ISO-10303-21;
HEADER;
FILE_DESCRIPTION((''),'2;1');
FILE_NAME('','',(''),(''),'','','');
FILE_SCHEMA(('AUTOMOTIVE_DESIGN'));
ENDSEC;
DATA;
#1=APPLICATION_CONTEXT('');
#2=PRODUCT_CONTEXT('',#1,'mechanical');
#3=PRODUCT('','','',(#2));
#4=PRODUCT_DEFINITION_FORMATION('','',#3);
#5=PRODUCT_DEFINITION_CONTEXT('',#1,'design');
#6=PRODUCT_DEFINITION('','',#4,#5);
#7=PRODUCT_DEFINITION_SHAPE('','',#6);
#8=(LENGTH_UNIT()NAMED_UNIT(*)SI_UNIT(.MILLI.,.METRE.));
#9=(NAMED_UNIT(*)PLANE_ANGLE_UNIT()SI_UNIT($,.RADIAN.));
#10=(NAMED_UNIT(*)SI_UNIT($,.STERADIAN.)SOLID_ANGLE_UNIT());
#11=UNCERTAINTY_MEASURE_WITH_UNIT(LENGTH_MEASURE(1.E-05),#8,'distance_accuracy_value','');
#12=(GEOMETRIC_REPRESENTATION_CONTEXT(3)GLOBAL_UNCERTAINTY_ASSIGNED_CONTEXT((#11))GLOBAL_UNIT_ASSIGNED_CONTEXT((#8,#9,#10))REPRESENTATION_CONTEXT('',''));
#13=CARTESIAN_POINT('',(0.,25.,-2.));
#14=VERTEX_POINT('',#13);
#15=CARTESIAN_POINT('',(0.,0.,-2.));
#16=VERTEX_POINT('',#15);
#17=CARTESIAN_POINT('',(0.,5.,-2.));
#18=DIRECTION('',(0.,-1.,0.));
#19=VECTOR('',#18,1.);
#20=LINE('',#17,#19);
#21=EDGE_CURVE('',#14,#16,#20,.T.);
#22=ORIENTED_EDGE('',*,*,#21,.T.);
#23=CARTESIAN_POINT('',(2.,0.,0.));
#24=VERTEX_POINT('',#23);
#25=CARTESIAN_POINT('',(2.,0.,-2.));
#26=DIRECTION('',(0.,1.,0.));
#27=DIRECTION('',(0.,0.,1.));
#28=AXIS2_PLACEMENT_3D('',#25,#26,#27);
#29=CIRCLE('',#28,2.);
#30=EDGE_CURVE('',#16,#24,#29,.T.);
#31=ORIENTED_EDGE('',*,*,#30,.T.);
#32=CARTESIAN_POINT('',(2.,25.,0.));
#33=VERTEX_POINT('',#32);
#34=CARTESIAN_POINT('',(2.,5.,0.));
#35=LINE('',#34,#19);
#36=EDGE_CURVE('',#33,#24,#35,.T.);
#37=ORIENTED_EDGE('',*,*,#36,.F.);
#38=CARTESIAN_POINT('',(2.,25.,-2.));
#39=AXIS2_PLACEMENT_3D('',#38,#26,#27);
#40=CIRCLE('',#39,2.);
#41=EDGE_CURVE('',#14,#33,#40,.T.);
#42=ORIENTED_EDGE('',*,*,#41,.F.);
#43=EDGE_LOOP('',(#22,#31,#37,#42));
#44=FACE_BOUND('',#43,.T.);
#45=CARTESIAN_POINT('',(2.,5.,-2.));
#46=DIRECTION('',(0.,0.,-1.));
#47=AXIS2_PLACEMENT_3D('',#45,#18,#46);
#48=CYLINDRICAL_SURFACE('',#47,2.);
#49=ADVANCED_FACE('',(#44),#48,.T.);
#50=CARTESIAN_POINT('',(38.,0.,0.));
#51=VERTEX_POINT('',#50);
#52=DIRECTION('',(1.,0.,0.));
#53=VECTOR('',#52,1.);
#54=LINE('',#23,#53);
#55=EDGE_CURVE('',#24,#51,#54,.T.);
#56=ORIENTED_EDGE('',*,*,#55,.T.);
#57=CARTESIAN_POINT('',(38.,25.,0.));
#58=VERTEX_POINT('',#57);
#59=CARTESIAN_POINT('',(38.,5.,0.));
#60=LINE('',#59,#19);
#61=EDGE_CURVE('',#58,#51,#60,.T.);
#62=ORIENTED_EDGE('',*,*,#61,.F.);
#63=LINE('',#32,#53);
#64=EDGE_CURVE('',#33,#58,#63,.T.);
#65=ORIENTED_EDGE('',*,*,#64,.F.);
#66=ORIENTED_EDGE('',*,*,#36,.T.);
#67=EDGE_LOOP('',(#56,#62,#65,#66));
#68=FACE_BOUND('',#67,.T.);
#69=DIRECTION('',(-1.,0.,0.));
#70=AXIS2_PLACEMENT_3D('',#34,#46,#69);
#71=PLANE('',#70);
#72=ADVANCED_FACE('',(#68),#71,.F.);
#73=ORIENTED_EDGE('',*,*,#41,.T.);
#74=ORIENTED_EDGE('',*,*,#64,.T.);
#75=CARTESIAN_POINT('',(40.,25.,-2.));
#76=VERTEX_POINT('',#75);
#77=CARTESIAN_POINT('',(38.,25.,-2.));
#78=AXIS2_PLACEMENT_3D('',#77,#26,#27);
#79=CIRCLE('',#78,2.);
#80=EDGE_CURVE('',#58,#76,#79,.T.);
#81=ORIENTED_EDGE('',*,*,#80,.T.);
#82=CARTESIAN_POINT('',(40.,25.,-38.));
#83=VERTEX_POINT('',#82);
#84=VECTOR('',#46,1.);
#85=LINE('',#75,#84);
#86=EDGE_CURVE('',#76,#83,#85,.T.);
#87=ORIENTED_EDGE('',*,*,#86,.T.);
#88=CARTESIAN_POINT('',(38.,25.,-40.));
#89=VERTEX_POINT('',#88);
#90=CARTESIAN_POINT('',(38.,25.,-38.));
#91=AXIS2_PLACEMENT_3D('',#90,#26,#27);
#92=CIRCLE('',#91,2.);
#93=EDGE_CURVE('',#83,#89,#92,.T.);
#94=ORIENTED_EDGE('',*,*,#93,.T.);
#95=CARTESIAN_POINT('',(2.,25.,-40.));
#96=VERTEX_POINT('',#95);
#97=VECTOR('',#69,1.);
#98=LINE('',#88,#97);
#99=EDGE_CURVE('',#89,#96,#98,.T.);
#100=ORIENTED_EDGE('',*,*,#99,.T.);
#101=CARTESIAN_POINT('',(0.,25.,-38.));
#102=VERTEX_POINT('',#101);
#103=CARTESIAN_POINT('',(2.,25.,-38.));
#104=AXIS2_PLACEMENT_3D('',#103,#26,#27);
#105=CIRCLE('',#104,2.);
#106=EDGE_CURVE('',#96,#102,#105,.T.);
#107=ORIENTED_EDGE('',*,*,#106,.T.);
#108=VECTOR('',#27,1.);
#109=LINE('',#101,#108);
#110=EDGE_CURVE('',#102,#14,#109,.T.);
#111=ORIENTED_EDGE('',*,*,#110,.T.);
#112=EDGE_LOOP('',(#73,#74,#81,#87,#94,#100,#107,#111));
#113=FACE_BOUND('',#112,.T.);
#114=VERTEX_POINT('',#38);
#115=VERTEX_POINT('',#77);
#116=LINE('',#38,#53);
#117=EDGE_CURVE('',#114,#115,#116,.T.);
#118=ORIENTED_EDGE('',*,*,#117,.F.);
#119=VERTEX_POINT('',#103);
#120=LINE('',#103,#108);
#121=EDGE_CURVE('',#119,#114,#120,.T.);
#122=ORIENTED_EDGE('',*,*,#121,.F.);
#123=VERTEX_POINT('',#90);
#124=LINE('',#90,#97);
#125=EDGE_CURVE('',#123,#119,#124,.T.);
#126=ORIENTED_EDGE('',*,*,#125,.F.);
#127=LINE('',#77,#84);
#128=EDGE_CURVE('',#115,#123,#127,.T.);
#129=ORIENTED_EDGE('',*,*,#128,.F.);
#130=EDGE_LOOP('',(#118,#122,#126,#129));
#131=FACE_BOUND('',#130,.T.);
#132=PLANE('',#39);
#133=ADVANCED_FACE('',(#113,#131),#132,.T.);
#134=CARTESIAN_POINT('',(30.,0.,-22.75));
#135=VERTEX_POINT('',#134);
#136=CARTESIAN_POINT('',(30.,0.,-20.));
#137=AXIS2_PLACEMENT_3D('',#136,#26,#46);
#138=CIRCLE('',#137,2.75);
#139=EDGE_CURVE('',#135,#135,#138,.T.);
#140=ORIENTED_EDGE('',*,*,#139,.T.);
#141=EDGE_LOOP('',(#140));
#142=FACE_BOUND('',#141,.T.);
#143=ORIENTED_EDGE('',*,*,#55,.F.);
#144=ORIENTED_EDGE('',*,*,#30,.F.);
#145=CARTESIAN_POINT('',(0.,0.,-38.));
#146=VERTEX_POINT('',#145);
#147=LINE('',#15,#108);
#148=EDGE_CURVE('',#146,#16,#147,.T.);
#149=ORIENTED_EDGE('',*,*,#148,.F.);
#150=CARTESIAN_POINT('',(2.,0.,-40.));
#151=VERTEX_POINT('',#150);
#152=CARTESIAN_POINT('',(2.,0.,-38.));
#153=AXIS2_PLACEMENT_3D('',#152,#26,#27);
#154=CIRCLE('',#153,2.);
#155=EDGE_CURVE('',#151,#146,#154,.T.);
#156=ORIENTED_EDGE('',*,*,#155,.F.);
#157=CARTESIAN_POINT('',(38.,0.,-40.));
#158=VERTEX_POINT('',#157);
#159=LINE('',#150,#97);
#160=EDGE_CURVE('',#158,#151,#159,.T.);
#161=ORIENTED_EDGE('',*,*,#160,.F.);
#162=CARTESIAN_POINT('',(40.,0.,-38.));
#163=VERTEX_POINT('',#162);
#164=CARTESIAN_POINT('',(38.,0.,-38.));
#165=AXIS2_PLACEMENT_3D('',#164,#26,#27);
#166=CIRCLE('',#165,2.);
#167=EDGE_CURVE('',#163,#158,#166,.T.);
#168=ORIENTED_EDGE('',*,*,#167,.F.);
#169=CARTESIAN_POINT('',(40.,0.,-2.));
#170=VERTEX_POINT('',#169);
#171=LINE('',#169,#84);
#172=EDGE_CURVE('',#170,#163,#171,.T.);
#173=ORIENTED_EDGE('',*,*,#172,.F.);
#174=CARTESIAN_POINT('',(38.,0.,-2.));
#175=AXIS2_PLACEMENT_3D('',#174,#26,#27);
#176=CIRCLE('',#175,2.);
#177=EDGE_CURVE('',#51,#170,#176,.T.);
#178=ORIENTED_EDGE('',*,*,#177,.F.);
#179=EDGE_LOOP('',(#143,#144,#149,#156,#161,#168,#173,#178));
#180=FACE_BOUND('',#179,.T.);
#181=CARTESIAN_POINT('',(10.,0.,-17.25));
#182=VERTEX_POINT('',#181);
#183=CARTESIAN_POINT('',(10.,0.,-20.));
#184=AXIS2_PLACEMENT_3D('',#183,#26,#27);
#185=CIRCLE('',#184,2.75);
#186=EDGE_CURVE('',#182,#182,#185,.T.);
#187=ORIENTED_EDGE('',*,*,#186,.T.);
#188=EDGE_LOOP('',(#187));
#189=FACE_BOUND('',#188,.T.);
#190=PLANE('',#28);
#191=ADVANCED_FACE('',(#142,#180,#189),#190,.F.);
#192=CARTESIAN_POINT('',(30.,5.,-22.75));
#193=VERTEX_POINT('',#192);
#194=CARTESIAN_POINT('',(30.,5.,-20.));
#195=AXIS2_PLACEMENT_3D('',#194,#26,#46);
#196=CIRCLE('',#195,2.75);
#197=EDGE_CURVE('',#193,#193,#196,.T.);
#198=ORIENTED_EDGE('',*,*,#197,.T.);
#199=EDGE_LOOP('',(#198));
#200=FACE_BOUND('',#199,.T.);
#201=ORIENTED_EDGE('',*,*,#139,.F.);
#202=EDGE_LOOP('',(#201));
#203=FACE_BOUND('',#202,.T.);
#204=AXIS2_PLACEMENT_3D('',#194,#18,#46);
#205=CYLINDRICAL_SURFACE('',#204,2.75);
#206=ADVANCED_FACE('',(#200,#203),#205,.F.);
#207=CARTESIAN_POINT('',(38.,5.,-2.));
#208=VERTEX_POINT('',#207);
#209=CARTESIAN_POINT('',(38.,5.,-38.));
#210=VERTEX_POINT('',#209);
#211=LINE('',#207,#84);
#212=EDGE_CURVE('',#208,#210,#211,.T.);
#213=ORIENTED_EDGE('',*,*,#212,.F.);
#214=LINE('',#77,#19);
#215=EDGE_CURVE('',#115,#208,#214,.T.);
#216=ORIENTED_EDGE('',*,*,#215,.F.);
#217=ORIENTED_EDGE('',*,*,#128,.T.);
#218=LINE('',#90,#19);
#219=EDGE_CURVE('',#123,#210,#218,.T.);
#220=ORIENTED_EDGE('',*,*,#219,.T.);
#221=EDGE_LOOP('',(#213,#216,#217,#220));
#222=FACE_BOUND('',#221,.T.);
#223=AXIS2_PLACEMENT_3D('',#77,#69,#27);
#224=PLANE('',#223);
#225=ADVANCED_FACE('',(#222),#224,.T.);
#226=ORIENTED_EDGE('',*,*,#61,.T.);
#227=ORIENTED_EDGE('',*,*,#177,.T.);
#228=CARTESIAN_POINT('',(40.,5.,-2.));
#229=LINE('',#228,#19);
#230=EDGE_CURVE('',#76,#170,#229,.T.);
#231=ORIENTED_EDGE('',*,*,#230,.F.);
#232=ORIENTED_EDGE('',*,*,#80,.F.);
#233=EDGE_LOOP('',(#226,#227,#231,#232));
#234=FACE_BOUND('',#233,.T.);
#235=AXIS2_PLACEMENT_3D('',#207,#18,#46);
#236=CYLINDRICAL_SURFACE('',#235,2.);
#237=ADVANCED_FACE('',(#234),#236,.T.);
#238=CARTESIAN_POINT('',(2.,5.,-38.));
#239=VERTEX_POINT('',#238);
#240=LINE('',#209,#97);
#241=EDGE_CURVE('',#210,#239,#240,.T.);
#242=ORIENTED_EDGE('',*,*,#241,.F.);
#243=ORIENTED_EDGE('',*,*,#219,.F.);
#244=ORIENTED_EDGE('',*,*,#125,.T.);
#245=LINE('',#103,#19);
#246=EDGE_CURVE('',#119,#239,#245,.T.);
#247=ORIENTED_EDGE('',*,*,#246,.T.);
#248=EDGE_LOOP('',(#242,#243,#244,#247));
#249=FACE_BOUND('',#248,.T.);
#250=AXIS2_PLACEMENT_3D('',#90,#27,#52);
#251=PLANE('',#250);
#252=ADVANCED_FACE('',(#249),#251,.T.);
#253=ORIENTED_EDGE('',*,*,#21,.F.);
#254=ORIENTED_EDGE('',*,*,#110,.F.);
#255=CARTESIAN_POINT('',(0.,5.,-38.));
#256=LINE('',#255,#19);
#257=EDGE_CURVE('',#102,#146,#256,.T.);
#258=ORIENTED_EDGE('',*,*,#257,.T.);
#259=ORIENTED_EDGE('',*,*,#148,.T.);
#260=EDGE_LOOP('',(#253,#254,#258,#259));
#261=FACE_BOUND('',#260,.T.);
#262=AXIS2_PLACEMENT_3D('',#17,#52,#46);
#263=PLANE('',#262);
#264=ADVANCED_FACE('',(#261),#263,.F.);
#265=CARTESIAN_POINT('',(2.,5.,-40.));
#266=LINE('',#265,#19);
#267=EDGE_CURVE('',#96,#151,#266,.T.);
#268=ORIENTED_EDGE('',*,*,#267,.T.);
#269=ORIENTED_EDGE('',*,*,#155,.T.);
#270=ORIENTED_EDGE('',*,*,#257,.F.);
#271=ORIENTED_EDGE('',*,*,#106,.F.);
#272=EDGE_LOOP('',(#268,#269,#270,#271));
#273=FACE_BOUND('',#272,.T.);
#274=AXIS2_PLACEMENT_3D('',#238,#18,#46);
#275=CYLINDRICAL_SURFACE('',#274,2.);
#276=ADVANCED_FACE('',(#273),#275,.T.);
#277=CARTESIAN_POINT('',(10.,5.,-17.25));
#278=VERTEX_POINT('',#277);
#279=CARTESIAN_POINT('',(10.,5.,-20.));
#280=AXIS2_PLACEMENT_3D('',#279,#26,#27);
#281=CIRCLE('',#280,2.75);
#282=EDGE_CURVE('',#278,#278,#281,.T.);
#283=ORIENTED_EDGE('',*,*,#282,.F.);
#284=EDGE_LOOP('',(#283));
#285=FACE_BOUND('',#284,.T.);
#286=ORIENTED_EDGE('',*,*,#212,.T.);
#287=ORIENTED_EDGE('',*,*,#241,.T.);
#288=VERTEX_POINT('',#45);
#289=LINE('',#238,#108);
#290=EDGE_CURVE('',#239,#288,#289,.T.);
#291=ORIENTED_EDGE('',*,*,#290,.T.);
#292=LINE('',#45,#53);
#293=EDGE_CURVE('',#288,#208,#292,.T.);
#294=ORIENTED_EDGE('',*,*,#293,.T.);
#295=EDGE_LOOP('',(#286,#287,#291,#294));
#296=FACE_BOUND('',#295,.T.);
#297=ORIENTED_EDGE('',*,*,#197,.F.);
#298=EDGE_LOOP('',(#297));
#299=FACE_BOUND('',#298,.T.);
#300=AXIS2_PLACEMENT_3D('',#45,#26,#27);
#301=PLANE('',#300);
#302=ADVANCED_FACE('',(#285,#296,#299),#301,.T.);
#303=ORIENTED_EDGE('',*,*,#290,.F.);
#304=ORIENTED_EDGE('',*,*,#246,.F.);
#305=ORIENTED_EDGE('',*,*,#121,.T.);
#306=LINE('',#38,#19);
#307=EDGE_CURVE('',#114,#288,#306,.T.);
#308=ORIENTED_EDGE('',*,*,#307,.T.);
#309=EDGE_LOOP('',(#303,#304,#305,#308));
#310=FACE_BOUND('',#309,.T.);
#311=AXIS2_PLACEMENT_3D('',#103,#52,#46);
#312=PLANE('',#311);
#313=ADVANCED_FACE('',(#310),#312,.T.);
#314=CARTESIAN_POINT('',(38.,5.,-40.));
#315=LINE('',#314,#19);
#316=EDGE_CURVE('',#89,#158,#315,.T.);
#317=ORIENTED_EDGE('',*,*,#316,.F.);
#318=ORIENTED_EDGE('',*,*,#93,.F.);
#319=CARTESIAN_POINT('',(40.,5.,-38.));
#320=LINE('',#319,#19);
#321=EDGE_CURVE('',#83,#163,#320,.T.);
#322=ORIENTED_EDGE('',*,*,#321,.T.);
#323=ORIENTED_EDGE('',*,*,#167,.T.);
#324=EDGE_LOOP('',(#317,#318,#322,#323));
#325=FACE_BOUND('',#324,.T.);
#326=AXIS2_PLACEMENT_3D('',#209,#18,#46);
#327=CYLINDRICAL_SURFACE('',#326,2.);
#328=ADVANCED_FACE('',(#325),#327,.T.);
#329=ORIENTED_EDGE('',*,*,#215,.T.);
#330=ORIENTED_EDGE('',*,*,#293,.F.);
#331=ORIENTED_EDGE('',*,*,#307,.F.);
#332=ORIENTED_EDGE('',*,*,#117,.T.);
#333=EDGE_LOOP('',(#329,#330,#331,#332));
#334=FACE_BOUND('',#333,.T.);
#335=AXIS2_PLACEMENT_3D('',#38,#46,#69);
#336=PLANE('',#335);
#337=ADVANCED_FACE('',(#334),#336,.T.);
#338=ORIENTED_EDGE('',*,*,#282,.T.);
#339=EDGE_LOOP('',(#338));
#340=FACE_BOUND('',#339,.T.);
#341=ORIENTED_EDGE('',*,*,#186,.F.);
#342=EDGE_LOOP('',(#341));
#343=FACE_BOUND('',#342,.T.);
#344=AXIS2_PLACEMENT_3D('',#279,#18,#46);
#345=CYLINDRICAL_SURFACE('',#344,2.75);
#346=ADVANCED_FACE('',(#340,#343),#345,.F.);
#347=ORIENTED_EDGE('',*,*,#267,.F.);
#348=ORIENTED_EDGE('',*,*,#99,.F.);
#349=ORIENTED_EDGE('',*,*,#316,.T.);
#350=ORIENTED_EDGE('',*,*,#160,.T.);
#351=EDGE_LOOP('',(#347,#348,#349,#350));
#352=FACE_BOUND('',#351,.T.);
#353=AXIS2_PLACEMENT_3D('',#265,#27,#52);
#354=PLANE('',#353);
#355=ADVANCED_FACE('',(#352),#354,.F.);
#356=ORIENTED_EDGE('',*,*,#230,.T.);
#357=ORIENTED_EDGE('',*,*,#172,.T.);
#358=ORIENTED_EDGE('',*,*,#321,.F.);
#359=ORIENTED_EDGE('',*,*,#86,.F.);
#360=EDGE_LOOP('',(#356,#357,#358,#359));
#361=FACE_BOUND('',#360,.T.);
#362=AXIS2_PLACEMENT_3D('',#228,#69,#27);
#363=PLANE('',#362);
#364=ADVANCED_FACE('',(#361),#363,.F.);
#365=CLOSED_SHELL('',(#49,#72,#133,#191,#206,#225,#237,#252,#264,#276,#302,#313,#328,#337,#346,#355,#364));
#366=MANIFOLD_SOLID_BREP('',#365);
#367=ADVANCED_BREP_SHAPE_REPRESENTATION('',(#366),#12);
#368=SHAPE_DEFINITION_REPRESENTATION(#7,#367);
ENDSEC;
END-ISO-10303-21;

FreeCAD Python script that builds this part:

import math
import FreeCAD as App
import Part
import Sketcher
from FreeCAD import Vector

doc = App.newDocument("Part")
body = doc.addObject("PartDesign::Body", "Body")

# Sketch on XZ plane
sketch1 = body.newObject("Sketcher::SketchObject", "Sketch")
sketch1.AttachmentSupport = (doc.getObject("XZ_Plane"), [""])
sketch1.MapMode = "FlatFace"
sketch1.addGeometry([
    Part.LineSegment(Vector(2, 0, 0), Vector(38, 0, 0)),  # 0
    Part.ArcOfCircle(Part.Circle(Vector(38, -2, 0), Vector(0, 0, 1), 2), math.radians(0), math.radians(90)),  # 1
    Part.LineSegment(Vector(40, -2, 0), Vector(40, -38, 0)),  # 2
    Part.ArcOfCircle(Part.Circle(Vector(38, -38, 0), Vector(0, 0, 1), 2), math.radians(-90), math.radians(0)),  # 3
    Part.LineSegment(Vector(38, -40, 0), Vector(2, -40, 0)),  # 4
    Part.ArcOfCircle(Part.Circle(Vector(2, -38, 0), Vector(0, 0, 1), 2), math.radians(-180), math.radians(-90)),  # 5
    Part.LineSegment(Vector(0, -38, 0), Vector(0, -2, 0)),  # 6
    Part.ArcOfCircle(Part.Circle(Vector(2, -2, 0), Vector(0, 0, 1), 2), math.radians(90), math.radians(180)),  # 7
    Part.Circle(Vector(10, -20, 0), Vector(0, 0, 1), 2.8),  # 8
    Part.Circle(Vector(30, -20, 0), Vector(0, 0, 1), 2.8),  # 9
], False)
sketch1.addConstraint([
    Sketcher.Constraint("Tangent", 0, 2, 1, 2),
    Sketcher.Constraint("Tangent", 1, 1, 2, 1),
    Sketcher.Constraint("Tangent", 2, 2, 3, 2),
    Sketcher.Constraint("Tangent", 3, 1, 4, 1),
    Sketcher.Constraint("Tangent", 4, 2, 5, 2),
    Sketcher.Constraint("Tangent", 5, 1, 6, 1),
    Sketcher.Constraint("Tangent", 6, 2, 7, 2),
    Sketcher.Constraint("Tangent", 7, 1, 0, 1),
    Sketcher.Constraint("Horizontal", 0),
    Sketcher.Constraint("Vertical", 2),
    Sketcher.Constraint("Horizontal", 4),
    Sketcher.Constraint("Vertical", 6),
    Sketcher.Constraint("Equal", 1, 3),
    Sketcher.Constraint("Equal", 3, 5),
    Sketcher.Constraint("Equal", 5, 7),
    Sketcher.Constraint("Equal", 8, 9),
    Sketcher.Constraint("PointOnObject", 0, 2, -1),
    Sketcher.Constraint("PointOnObject", 5, 1, -2),
    Sketcher.Constraint("Horizontal", 8, 3, 9, 3),
    Sketcher.Constraint("Equal", 4, 2),
    Sketcher.Constraint("Radius", 1, 2.0),
    Sketcher.Constraint("Diameter", 8, 5.5),
    Sketcher.Constraint("DistanceX", 0, 1, 0, 2, 36.0),
    Sketcher.Constraint("DistanceX", -1, 1, 8, 3, 10.0),
    Sketcher.Constraint("DistanceY", 8, 3, -1, 1, 20.0),
    Sketcher.Constraint("DistanceX", -1, 1, 9, 3, 30.0),
])
pad1 = body.newObject("PartDesign::Pad", "Pad")
pad1.Profile = sketch1
pad1.Length = 5
pad1.Reversed = True

# Sketch on XZ plane
sketch2 = body.newObject("Sketcher::SketchObject", "Sketch001")
sketch2.AttachmentSupport = (doc.getObject("XZ_Plane"), [""])
sketch2.MapMode = "FlatFace"
sketch2.AttachmentOffset = App.Placement(Vector(0, 0, -5), App.Rotation())
sketch2.addGeometry([
    Part.LineSegment(Vector(0, -38, 0), Vector(0, -2, 0)),  # 0
    Part.ArcOfCircle(Part.Circle(Vector(2, -2, 0), Vector(0, 0, 1), 2), math.radians(90), math.radians(180)),  # 1
    Part.LineSegment(Vector(2, 0, 0), Vector(38, 0, 0)),  # 2
    Part.ArcOfCircle(Part.Circle(Vector(38, -2, 0), Vector(0, 0, 1), 2), math.radians(0), math.radians(90)),  # 3
    Part.LineSegment(Vector(40, -2, 0), Vector(40, -38, 0)),  # 4
    Part.ArcOfCircle(Part.Circle(Vector(38, -38, 0), Vector(0, 0, 1), 2), math.radians(-90), math.radians(0)),  # 5
    Part.LineSegment(Vector(38, -40, 0), Vector(2, -40, 0)),  # 6
    Part.ArcOfCircle(Part.Circle(Vector(2, -38, 0), Vector(0, 0, 1), 2), math.radians(-180), math.radians(-90)),  # 7
    Part.LineSegment(Vector(38, -2, 0), Vector(2, -2, 0)),  # 8
    Part.LineSegment(Vector(2, -2, 0), Vector(2, -38, 0)),  # 9
    Part.LineSegment(Vector(2, -38, 0), Vector(38, -38, 0)),  # 10
    Part.LineSegment(Vector(38, -38, 0), Vector(38, -2, 0)),  # 11
], False)
sketch2.addConstraint([
    Sketcher.Constraint("Tangent", 0, 2, 1, 2),
    Sketcher.Constraint("Tangent", 1, 1, 2, 1),
    Sketcher.Constraint("Tangent", 2, 2, 3, 2),
    Sketcher.Constraint("Tangent", 3, 1, 4, 1),
    Sketcher.Constraint("Tangent", 4, 2, 5, 2),
    Sketcher.Constraint("Tangent", 5, 1, 6, 1),
    Sketcher.Constraint("Tangent", 6, 2, 7, 2),
    Sketcher.Constraint("Tangent", 7, 1, 0, 1),
    Sketcher.Constraint("Coincident", 8, 2, 9, 1),
    Sketcher.Constraint("Coincident", 9, 2, 10, 1),
    Sketcher.Constraint("Coincident", 10, 2, 11, 1),
    Sketcher.Constraint("Coincident", 11, 2, 8, 1),
    Sketcher.Constraint("Vertical", 0),
    Sketcher.Constraint("Horizontal", 2),
    Sketcher.Constraint("Vertical", 4),
    Sketcher.Constraint("Horizontal", 6),
    Sketcher.Constraint("Horizontal", 8),
    Sketcher.Constraint("Vertical", 9),
    Sketcher.Constraint("Horizontal", 10),
    Sketcher.Constraint("Vertical", 11),
    Sketcher.Constraint("Coincident", 8, 2, 1, 3),
    Sketcher.Constraint("Coincident", 9, 2, 7, 3),
    Sketcher.Constraint("Coincident", 10, 2, 5, 3),
    Sketcher.Constraint("Equal", 1, 3),
    Sketcher.Constraint("PointOnObject", 0, 2, -2),
    Sketcher.Constraint("PointOnObject", 1, 1, -1),
    Sketcher.Constraint("Equal", 10, 0),
    Sketcher.Constraint("Radius", 1, 2.0),
    Sketcher.Constraint("DistanceX", 2, 1, 2, 2, 36.0),
])
pad2 = body.newObject("PartDesign::Pad", "Pad001")
pad2.Profile = sketch2
pad2.Length = 20
pad2.Reversed = True

doc.recompute()
